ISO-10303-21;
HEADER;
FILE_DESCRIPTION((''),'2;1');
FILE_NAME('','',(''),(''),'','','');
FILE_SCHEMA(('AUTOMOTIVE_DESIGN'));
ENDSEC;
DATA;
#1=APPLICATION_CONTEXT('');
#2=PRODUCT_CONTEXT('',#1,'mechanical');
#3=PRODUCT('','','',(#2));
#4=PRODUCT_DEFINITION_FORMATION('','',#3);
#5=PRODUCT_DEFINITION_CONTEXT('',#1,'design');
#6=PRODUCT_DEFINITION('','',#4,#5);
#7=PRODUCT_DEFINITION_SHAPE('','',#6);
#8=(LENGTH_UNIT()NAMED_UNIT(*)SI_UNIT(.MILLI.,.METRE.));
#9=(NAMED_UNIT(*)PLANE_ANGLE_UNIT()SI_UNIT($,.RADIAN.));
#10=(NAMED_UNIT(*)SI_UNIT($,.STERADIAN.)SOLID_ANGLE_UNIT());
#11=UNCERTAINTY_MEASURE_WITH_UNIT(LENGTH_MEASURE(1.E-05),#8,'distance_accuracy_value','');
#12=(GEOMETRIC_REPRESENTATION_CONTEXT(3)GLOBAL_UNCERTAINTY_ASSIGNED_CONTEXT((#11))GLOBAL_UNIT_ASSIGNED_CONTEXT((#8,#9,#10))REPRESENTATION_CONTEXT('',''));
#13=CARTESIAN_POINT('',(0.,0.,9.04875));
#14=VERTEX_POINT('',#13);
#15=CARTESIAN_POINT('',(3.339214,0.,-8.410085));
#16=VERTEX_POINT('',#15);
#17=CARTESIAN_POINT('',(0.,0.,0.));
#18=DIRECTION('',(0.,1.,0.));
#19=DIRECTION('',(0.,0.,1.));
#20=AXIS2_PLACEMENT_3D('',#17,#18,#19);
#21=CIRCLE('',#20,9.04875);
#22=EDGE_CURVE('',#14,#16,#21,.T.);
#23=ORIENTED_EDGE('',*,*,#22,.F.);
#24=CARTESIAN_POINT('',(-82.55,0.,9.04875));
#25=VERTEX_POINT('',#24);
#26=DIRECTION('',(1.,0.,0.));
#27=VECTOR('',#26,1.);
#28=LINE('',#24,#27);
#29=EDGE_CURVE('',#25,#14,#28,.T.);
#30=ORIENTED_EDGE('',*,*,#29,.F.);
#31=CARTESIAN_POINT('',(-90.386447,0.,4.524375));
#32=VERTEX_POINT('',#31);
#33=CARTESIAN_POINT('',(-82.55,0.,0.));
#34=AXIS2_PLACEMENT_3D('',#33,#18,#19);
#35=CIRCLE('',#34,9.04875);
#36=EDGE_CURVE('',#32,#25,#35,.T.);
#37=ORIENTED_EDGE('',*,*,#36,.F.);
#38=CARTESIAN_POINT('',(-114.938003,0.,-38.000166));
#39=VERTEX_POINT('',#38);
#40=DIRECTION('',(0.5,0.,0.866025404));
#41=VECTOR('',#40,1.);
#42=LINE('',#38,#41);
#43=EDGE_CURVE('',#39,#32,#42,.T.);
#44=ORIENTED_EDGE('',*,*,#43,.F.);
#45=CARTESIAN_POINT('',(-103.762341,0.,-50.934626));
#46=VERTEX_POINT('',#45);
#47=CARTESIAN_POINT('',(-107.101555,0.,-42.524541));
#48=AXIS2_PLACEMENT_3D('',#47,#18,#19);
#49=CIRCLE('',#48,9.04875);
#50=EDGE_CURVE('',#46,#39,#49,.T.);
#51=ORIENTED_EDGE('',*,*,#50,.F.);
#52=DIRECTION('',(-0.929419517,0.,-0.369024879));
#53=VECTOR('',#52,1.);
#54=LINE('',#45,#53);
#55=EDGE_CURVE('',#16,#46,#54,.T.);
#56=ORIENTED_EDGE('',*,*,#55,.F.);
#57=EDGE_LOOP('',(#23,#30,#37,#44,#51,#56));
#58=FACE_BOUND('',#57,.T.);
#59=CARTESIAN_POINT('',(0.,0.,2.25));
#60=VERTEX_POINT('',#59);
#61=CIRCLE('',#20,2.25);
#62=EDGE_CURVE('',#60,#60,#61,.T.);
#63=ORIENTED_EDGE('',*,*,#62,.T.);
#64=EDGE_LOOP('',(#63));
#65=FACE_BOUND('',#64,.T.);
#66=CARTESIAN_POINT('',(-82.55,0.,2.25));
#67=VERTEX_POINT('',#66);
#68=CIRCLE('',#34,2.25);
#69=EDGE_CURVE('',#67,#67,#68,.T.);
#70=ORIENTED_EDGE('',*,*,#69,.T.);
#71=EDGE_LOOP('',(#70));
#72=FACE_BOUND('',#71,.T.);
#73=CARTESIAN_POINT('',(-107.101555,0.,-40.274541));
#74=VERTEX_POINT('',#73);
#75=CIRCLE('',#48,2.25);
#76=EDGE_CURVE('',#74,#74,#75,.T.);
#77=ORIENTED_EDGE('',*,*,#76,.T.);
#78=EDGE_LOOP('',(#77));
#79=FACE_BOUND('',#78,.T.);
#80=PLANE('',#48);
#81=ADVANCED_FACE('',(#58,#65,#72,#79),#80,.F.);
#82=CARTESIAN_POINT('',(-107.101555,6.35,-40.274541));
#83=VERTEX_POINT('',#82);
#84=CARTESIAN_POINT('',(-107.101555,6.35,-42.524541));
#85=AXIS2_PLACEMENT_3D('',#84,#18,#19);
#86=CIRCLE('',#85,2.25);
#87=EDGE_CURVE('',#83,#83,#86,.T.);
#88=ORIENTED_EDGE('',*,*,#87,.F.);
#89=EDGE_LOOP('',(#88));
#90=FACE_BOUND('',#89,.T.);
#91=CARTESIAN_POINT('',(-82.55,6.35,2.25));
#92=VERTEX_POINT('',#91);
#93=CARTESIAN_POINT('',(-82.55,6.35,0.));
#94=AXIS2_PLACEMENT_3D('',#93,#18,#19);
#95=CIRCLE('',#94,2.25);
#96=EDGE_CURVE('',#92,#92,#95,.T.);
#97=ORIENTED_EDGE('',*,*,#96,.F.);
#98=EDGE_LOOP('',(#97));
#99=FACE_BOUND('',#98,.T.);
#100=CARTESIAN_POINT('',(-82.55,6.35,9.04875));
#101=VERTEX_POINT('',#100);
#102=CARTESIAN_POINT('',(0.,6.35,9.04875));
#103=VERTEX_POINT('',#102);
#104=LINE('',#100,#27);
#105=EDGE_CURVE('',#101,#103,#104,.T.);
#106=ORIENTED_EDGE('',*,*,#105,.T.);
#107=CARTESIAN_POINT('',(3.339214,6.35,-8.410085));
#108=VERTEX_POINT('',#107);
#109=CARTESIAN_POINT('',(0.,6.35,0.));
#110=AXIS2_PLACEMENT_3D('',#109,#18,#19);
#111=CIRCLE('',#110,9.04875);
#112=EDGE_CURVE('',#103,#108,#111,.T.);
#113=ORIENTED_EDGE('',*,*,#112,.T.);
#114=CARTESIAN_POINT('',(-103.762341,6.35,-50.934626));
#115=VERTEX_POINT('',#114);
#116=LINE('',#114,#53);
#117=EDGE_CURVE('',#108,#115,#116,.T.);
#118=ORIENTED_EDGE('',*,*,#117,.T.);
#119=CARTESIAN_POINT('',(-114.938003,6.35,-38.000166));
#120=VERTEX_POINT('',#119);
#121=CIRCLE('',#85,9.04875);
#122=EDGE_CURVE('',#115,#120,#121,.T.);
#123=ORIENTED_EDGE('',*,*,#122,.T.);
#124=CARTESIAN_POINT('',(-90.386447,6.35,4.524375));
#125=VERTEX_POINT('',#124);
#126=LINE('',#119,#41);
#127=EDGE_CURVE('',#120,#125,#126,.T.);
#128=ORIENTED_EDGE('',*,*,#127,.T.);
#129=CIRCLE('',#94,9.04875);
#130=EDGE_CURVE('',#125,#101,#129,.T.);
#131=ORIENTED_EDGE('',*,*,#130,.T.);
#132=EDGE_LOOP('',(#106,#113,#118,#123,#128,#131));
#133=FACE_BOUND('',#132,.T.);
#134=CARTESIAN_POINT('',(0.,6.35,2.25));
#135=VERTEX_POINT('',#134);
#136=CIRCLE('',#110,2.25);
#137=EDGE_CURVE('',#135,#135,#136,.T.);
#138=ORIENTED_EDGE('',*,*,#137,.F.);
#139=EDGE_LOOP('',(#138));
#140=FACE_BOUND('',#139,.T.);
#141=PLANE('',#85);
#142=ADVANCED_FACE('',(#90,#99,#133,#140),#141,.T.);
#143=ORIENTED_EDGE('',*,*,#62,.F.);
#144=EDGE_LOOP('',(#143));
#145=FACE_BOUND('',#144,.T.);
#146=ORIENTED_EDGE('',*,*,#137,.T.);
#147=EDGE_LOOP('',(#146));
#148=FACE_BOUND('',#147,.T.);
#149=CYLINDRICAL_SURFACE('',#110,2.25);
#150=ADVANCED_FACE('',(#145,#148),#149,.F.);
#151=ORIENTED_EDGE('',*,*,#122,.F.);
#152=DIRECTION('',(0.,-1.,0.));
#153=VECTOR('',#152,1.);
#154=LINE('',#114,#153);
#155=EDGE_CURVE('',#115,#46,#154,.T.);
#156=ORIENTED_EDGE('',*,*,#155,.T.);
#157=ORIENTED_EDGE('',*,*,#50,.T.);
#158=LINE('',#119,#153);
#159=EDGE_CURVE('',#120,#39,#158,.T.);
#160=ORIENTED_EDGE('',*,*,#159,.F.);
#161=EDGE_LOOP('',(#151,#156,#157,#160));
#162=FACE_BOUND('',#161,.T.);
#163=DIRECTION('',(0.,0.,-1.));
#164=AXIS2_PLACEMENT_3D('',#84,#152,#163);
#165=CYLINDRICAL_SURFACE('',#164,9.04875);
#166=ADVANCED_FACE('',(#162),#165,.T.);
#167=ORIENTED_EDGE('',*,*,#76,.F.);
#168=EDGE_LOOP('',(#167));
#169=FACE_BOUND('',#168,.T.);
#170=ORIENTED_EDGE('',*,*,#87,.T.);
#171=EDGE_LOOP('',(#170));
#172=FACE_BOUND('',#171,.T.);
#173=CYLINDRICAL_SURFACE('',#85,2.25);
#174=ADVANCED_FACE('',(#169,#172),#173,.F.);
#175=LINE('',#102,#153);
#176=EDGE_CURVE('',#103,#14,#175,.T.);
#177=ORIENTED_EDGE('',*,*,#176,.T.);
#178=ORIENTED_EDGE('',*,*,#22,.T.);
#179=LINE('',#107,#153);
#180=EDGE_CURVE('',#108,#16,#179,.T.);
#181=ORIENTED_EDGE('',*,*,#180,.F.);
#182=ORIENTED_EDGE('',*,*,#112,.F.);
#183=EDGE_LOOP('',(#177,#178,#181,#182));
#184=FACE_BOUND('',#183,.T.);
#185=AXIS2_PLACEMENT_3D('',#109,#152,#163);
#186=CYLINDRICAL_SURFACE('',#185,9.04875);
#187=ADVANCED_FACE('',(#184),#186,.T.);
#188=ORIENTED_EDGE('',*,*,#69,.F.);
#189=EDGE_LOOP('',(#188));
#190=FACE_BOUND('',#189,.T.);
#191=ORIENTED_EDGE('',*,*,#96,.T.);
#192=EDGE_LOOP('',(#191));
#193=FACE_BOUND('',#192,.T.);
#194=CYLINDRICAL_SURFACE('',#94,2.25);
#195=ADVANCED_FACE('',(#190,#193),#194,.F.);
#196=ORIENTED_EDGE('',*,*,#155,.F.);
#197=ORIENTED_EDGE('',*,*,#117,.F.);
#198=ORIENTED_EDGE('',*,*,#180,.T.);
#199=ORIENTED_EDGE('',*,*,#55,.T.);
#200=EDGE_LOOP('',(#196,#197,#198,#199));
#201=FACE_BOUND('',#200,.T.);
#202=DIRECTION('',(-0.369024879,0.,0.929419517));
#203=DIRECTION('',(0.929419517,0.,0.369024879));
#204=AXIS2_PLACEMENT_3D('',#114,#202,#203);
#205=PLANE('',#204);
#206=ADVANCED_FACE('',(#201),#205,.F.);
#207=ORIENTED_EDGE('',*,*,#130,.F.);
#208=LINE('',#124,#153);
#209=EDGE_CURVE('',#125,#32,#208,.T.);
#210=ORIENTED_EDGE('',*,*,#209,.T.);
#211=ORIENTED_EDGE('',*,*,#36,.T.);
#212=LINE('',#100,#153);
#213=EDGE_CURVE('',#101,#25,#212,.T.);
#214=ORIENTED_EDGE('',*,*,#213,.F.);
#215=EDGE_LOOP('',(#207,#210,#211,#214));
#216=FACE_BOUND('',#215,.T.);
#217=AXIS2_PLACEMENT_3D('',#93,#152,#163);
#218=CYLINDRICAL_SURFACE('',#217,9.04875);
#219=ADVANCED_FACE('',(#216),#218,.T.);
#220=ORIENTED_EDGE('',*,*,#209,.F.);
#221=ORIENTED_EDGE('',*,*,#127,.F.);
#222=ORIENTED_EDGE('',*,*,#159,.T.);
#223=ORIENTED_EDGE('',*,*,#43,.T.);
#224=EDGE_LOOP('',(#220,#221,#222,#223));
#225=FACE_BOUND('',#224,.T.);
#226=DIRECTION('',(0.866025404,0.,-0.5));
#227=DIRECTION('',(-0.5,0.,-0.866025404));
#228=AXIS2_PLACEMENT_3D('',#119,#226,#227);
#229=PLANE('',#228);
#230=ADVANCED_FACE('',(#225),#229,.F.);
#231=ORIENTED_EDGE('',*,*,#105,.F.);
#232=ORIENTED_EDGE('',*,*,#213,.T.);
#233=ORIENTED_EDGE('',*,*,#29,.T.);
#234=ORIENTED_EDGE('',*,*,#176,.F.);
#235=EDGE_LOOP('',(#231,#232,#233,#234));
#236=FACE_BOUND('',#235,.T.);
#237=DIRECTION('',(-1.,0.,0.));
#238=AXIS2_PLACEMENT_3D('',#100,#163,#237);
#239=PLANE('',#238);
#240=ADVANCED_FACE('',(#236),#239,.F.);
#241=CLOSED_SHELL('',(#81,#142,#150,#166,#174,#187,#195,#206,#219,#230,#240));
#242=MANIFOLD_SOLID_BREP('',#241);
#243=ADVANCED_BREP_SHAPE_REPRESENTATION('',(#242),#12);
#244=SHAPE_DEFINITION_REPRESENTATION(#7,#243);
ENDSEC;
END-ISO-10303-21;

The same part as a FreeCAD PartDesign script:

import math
import FreeCAD as App
import Part
import Sketcher

V = App.Vector
Q = App.Units.Quantity

doc = App.newDocument("Part")
params = doc.addObject("Spreadsheet::Sheet", "Params")
for row, (alias, value) in enumerate([
    ("sketch1_width", "3.25 in"),
    ("pad1_length", "0.25 in"),
    ("hole_diameter", "4.5 mm"),
], start=1):
    params.set(f"A{row}", alias)
    params.set(f"B{row}", "=" + value)
    params.setAlias(f"B{row}", alias)

body = doc.addObject("PartDesign::Body", "Body")

# Sketch on XZ plane
sketch1 = doc.addObject("Sketcher::SketchObject", "Sketch")
body.addObject(sketch1)
sketch1.AttachmentSupport = (doc.XZ_Plane, [""])
sketch1.MapMode = "FlatFace"
sketch1.addGeometry([
    Part.LineSegment(V(3, -8, 0), V(-104, -51, 0)),  # 0
    Part.ArcOfCircle(Part.Circle(V(-107, -43, 0), V(0, 0, 1), 9), math.radians(150), math.radians(292)),  # 1
    Part.LineSegment(V(-115, -38, 0), V(-90, 5, 0)),  # 2
    Part.ArcOfCircle(Part.Circle(V(-83, 0, 0), V(0, 0, 1), 9), math.radians(90), math.radians(150)),  # 3
    Part.LineSegment(V(-83, 9, 0), V(0, 9, 0)),  # 4
    Part.ArcOfCircle(Part.Circle(V(0, 0, 0), V(0, 0, 1), 9), math.radians(-68), math.radians(90)),  # 5
], False)
sketch1.addConstraint([
    Sketcher.Constraint("Tangent", 0, 2, 1, 2),
    Sketcher.Constraint("Tangent", 1, 1, 2, 1),
    Sketcher.Constraint("Tangent", 2, 2, 3, 2),
    Sketcher.Constraint("Tangent", 3, 1, 4, 1),
    Sketcher.Constraint("Tangent", 4, 2, 5, 2),
    Sketcher.Constraint("Tangent", 5, 1, 0, 1),
    Sketcher.Constraint("Horizontal", 4),
    Sketcher.Constraint("Coincident", 5, 3, -1, 1),
    Sketcher.Constraint("Equal", 1, 3),
    Sketcher.Constraint("Equal", 3, 5),
    Sketcher.Constraint("Angle", 2, Q("60 deg")),
    Sketcher.Constraint("DistanceX", 4, 1, 4, 2, Q("3.25 in")),
    Sketcher.Constraint("Radius", 1, Q("9.04875 mm")),
    Sketcher.Constraint("DistanceY", 0, 2, 2, 2, Q("55.459001 mm")),
])
sketch1.setExpression("Constraints[11]", "Params.sketch1_width")
pad1 = doc.addObject("PartDesign::Pad", "Pad")
body.addObject(pad1)
pad1.Profile = sketch1
pad1.setExpression("Length", "Params.pad1_length")
pad1.Reversed = True

# Sketch on XZ plane
sketch2 = doc.addObject("Sketcher::SketchObject", "Sketch001")
body.addObject(sketch2)
sketch2.AttachmentSupport = (doc.XZ_Plane, [""])
sketch2.MapMode = "FlatFace"
sketch2.AttachmentOffset = App.Placement(V(0, 0, -0.25 * 25.4), App.Rotation())
sketch2.addGeometry([
    Part.Circle(V(-107.1, -42.5, 0), V(0, 0, 1), 2.2),
    Part.Circle(V(-82.5, 0, 0), V(0, 0, 1), 2.2),
    Part.Circle(V(0, 0, 0), V(0, 0, 1), 2.2),
], False)
sketch2.addConstraint([
    Sketcher.Constraint("Coincident", 2, 3, -1, 1),
    Sketcher.Constraint("Equal", 0, 1),
    Sketcher.Constraint("Equal", 1, 2),
    Sketcher.Constraint("PointOnObject", 1, 3, -1),
    Sketcher.Constraint("Diameter", 0, Q("4.5 mm")),
    Sketcher.Constraint("DistanceX", 1, 3, -1, 1, Q("3.25 in")),
    Sketcher.Constraint("DistanceY", 0, 3, -1, 1, Q("42.524541 mm")),
    Sketcher.Constraint("DistanceX", 0, 3, -1, 1, Q("107.101555 mm")),
])
doc.recompute()
hole = doc.addObject("PartDesign::Hole", "Hole")
body.addObject(hole)
hole.Profile = sketch2
hole.ThreadType = "None"
hole.setExpression("Diameter", "Params.hole_diameter")
hole.DepthType = "ThroughAll"
hole.Reversed = True

doc.recompute()
